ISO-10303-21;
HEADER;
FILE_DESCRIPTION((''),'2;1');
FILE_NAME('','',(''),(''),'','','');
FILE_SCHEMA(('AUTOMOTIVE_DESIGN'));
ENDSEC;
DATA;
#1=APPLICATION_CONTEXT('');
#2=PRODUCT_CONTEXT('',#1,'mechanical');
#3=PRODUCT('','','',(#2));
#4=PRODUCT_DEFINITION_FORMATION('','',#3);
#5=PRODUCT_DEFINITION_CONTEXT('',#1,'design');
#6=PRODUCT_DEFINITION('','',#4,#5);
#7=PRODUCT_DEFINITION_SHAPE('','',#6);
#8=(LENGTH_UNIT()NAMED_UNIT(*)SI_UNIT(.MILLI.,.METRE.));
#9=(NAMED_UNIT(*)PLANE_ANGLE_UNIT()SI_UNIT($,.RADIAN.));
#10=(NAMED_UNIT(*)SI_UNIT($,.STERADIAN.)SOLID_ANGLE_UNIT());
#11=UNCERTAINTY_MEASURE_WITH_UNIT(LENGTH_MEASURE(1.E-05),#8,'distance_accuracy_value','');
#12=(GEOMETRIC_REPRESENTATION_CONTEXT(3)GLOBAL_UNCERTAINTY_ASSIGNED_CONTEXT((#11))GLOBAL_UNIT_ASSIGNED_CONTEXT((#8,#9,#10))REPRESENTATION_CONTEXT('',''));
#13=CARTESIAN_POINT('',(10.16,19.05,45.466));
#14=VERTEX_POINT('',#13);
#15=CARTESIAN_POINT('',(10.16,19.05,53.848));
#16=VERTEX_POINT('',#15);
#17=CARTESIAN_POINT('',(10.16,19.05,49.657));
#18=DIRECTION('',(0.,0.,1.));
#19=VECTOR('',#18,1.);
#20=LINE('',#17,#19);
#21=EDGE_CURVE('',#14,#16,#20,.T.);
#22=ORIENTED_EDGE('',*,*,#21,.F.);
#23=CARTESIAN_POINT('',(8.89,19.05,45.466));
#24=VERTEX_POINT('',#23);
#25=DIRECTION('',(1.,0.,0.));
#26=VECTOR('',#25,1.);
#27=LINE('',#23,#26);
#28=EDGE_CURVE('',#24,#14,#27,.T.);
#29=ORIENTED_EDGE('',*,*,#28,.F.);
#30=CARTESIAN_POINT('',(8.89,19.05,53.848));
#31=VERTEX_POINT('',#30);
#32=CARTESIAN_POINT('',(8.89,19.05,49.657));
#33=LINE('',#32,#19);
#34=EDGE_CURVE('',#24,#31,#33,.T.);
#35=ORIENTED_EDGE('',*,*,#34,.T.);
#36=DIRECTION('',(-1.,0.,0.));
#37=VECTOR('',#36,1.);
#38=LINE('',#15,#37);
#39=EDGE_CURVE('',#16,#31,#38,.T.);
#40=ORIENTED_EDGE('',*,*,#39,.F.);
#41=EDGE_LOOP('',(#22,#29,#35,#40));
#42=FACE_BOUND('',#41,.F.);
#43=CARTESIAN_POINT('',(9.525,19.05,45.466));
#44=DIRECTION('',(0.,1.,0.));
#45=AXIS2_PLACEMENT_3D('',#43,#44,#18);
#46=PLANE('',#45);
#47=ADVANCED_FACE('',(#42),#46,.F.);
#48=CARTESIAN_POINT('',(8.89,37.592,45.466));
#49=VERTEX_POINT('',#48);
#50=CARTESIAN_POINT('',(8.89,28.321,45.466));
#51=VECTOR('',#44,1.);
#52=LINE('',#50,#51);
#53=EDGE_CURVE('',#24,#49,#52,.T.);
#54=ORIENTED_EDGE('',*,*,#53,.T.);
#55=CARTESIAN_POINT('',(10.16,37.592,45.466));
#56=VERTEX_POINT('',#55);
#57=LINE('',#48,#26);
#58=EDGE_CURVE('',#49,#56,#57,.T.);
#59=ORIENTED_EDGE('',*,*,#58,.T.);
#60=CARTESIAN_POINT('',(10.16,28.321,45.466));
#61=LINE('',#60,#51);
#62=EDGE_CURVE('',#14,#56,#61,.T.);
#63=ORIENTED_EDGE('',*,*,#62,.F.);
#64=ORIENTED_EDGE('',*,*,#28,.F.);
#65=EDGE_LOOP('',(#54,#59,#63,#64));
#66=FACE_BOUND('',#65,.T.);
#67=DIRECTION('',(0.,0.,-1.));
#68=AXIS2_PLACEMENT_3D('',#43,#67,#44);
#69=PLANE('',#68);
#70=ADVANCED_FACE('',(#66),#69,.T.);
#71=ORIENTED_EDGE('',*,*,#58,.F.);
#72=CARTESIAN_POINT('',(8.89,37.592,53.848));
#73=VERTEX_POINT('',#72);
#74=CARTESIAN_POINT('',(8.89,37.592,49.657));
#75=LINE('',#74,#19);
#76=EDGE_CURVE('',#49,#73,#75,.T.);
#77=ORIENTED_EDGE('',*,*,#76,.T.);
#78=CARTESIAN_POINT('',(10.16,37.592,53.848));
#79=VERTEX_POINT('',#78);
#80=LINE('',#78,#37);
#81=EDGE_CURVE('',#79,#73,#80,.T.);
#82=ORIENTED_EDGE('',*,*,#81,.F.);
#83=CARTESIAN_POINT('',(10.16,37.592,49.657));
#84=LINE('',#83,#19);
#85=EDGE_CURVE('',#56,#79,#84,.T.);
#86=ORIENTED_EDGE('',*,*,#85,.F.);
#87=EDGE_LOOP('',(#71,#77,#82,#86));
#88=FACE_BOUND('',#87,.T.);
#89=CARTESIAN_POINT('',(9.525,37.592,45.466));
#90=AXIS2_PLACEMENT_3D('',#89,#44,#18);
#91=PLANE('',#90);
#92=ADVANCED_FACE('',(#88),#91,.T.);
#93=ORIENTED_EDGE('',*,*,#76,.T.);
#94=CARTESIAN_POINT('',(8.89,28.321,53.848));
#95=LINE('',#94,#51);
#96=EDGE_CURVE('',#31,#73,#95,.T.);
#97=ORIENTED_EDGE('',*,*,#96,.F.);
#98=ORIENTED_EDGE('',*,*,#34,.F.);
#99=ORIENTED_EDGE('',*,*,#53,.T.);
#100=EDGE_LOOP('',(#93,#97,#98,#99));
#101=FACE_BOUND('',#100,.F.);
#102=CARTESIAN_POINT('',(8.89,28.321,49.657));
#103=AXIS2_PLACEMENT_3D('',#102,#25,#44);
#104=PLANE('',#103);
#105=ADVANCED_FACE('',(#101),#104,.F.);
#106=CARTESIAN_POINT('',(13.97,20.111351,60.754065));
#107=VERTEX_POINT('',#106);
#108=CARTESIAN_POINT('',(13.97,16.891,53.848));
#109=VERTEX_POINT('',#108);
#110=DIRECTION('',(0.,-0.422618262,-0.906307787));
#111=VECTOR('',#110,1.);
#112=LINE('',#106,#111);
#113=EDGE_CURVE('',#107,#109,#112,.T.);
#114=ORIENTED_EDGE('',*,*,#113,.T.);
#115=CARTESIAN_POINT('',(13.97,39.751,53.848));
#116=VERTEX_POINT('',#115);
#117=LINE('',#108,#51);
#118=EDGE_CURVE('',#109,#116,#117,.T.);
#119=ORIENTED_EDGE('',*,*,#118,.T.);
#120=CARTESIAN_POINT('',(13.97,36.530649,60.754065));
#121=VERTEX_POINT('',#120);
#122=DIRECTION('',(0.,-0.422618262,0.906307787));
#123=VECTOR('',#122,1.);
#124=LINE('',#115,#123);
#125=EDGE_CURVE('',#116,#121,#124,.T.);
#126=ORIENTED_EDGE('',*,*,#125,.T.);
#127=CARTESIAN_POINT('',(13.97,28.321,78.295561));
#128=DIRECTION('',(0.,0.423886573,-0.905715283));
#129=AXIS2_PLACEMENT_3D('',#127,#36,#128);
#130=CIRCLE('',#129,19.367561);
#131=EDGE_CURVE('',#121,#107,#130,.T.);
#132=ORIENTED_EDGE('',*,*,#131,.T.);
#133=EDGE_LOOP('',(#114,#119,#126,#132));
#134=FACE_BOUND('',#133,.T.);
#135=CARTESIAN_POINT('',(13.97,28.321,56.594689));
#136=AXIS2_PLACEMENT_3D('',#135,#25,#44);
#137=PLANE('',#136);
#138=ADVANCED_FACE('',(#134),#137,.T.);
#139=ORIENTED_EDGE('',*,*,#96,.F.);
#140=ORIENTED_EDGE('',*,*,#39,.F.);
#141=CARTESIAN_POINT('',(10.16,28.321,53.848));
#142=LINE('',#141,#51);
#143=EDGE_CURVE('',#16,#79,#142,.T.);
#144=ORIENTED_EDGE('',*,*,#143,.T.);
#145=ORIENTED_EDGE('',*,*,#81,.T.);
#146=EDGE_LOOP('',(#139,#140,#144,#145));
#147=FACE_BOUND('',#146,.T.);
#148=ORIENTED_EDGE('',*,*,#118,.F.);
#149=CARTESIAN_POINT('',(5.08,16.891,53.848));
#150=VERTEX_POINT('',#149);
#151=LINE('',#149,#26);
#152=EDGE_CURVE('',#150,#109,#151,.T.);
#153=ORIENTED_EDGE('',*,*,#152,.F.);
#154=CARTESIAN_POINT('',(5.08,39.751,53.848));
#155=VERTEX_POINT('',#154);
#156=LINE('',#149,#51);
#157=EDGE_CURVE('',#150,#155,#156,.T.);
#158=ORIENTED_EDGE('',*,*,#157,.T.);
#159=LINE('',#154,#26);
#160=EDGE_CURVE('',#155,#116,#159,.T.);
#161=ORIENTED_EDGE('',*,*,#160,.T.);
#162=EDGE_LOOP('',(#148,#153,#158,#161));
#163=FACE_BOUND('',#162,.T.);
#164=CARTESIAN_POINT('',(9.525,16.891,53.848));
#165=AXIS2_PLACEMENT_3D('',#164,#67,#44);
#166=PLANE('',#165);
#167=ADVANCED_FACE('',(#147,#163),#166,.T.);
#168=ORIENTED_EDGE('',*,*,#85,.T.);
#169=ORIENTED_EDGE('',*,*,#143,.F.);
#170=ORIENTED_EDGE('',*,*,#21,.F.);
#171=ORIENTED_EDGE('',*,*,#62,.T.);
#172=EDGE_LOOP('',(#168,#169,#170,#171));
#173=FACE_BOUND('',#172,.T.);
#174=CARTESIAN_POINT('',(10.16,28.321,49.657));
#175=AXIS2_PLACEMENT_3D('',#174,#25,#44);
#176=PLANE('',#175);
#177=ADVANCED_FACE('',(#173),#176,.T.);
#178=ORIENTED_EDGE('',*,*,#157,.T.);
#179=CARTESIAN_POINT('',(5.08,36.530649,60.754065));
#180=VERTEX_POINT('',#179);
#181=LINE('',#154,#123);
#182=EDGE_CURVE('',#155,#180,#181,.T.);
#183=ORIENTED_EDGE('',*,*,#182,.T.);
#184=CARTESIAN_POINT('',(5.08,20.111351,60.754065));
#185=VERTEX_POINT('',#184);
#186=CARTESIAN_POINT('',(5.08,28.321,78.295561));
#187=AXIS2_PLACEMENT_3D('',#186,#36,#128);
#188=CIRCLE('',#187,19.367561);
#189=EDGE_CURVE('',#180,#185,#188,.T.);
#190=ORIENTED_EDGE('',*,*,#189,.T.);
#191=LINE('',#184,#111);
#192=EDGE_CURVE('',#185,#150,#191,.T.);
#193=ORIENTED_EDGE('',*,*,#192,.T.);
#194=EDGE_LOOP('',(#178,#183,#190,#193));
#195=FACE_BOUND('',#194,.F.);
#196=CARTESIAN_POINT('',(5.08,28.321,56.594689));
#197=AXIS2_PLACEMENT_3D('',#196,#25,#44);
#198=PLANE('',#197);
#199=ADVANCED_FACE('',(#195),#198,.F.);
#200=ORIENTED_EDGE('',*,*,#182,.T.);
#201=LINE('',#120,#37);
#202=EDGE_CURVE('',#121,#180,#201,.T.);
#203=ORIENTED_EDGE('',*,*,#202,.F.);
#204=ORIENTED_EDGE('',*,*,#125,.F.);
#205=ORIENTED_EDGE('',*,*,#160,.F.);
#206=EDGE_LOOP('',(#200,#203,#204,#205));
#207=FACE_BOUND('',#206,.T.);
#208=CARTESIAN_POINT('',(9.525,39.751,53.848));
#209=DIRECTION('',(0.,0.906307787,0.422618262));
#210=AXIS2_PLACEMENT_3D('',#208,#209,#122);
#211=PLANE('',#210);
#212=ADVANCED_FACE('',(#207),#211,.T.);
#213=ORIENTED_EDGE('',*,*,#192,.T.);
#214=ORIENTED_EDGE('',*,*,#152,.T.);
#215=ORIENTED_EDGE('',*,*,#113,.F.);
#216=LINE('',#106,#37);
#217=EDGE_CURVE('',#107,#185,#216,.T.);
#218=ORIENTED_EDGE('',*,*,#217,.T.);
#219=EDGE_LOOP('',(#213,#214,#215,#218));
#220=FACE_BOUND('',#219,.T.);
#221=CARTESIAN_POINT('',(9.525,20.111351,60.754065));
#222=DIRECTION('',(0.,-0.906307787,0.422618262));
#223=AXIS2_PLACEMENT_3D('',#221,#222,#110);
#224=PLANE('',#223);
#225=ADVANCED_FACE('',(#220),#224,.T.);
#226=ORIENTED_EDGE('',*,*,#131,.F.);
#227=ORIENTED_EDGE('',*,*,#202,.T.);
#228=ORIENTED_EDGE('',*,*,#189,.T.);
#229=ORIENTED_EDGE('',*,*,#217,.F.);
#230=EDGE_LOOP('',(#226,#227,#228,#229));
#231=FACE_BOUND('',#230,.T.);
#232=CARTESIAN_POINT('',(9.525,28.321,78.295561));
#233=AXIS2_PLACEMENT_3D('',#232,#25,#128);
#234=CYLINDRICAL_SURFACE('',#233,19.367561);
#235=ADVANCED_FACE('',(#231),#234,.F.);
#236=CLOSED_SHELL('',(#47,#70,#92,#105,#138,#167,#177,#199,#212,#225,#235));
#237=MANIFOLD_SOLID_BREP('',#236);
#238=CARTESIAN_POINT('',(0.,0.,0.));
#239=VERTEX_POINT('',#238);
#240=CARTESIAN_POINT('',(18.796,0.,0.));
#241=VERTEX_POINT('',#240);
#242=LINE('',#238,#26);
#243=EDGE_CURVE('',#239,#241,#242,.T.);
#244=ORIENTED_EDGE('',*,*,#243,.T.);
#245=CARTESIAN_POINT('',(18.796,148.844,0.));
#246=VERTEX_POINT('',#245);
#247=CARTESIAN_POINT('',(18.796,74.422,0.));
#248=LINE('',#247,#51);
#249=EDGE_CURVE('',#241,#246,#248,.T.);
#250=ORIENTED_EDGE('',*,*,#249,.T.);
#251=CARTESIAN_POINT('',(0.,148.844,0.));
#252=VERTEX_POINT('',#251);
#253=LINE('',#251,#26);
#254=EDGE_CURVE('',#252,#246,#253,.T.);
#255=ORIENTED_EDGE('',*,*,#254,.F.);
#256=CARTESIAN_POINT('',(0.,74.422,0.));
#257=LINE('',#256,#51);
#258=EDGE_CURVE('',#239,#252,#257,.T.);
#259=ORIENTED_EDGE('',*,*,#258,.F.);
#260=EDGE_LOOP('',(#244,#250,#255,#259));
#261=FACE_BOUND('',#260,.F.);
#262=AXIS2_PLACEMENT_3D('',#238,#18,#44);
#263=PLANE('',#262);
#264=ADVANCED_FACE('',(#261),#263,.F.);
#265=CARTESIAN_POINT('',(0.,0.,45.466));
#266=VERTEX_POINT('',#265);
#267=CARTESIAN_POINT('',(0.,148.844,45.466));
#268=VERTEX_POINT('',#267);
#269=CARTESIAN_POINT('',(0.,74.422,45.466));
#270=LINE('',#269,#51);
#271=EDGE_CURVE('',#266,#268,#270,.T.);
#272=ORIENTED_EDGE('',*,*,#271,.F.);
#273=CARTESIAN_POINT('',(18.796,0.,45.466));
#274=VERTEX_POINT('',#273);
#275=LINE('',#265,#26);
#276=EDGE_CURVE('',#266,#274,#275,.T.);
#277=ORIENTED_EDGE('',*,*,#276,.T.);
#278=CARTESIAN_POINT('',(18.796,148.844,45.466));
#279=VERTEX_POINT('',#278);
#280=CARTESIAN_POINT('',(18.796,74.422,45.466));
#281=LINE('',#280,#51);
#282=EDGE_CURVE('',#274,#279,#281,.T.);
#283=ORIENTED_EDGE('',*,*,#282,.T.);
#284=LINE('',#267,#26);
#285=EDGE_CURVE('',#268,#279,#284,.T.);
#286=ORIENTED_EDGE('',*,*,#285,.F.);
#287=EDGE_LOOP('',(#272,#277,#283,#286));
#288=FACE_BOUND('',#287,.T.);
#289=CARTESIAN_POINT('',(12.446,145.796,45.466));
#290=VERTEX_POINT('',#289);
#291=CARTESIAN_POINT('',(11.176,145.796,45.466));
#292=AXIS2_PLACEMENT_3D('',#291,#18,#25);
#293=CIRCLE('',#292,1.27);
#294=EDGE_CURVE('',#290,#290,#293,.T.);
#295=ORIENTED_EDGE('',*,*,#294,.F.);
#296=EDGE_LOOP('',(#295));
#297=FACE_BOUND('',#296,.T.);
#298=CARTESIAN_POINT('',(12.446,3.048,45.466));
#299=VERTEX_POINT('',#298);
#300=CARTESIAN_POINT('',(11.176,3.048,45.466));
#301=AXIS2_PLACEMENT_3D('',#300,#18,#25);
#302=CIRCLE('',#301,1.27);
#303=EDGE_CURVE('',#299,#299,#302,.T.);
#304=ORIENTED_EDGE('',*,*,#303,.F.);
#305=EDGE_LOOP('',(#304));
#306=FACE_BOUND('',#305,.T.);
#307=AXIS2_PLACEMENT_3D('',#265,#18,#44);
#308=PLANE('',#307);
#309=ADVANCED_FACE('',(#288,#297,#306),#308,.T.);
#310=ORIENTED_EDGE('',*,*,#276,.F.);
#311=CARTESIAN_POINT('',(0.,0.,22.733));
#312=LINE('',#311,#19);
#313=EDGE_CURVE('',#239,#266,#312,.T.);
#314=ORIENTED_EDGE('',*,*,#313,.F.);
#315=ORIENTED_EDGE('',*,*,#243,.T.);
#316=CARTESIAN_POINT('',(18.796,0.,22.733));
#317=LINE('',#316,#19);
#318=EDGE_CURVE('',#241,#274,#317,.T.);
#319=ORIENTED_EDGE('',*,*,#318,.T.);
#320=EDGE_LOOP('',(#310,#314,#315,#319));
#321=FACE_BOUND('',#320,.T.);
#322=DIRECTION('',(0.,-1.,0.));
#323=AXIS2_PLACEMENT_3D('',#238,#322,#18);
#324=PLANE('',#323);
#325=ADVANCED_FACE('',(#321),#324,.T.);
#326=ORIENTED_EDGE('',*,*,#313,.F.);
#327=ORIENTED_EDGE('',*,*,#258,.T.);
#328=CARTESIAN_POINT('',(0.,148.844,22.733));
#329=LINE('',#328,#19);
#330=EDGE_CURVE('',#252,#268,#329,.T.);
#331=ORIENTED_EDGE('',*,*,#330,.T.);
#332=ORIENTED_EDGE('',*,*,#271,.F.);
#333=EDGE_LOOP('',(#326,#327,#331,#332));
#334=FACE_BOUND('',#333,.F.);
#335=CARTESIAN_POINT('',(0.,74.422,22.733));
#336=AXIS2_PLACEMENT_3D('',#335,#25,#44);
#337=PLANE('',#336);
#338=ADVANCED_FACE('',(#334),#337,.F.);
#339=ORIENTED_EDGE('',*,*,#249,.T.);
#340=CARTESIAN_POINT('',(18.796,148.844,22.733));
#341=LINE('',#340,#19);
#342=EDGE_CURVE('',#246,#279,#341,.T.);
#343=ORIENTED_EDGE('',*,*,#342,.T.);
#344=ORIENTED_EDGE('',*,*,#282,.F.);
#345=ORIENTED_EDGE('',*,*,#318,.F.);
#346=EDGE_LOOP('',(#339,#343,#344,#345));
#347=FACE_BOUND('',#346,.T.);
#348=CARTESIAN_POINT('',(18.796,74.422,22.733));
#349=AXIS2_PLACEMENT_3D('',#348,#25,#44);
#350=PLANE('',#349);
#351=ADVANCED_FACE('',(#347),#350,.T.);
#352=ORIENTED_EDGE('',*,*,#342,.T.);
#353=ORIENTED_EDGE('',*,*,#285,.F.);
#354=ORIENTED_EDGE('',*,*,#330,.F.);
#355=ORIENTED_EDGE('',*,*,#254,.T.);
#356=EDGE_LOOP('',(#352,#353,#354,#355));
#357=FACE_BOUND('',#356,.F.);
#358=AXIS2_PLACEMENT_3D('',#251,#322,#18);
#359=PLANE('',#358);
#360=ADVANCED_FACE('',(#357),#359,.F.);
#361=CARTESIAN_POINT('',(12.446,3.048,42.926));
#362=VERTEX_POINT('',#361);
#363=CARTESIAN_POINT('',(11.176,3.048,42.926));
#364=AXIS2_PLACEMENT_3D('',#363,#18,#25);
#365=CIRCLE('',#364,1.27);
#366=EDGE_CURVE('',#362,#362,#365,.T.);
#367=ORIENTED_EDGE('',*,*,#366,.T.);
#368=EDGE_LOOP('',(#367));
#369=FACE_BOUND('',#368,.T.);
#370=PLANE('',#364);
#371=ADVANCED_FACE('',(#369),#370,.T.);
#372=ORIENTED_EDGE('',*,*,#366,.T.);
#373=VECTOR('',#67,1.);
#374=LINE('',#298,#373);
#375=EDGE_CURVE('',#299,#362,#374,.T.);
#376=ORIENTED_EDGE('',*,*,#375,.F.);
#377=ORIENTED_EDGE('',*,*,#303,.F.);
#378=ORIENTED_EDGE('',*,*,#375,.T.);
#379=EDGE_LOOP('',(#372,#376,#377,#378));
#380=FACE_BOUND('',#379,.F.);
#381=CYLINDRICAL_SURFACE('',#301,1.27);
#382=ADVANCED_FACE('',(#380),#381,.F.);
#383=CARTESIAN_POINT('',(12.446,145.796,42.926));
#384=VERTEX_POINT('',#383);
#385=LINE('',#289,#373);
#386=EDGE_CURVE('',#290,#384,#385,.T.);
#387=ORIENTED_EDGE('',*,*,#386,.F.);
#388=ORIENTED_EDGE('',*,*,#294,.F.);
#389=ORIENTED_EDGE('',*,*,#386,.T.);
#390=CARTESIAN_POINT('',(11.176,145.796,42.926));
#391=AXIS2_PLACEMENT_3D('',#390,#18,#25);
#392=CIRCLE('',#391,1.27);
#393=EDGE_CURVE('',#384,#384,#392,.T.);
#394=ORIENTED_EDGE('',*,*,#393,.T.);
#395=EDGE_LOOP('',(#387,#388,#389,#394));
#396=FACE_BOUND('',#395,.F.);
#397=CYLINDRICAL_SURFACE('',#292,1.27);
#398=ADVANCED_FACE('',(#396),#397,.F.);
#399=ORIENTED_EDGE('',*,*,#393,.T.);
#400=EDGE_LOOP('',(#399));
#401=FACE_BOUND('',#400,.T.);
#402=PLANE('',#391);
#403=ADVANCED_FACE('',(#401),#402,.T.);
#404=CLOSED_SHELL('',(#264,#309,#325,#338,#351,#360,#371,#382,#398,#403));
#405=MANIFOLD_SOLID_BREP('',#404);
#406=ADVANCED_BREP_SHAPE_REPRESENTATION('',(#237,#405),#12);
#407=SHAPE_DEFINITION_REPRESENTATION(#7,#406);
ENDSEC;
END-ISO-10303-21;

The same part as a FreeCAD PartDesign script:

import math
import FreeCAD as App
import Part
import Sketcher
from FreeCAD import Vector
Q = App.Units.Quantity


def add_polygon(sketch, points):
    """Adds a closed chain of lines whose ends are joined by coincident constraints."""
    first, n = sketch.GeometryCount, len(points)
    for a, b in zip(points, points[1:] + points[:1]):
        sketch.addGeometry(Part.LineSegment(App.Vector(*a, 0), App.Vector(*b, 0)), False)
    for i in range(n):
        sketch.addConstraint(Sketcher.Constraint("Coincident", first + i, 2, first + (i + 1) % n, 1))

doc = App.newDocument("Part")
body = doc.addObject("PartDesign::Body", "Body")

sketch1 = body.newObject("Sketcher::SketchObject", "Sketch")
sketch1.AttachmentSupport = (doc.getObject("YZ_Plane"), [""])
sketch1.MapMode = "FlatFace"
add_polygon(sketch1, [(0, 45), (0, 0), (149, 0), (149, 45)])
sketch1.addConstraint(Sketcher.Constraint("Vertical", 0))
sketch1.addConstraint(Sketcher.Constraint("Horizontal", 1))
sketch1.addConstraint(Sketcher.Constraint("Vertical", 2))
sketch1.addConstraint(Sketcher.Constraint("Horizontal", 3))
sketch1.addConstraint(Sketcher.Constraint("Coincident", 0, 2, -1, 1))
sketch1.addConstraint(Sketcher.Constraint("DistanceX", 1, 1, 1, 2, Q("5.86 in")))
sketch1.addConstraint(Sketcher.Constraint("DistanceY", 0, 2, 0, 1, Q("1.79 in")))
pad1 = body.newObject("PartDesign::Pad", "Pad")
pad1.Profile = sketch1
pad1.Length = Q("0.74 in")

sketch2 = body.newObject("Sketcher::SketchObject", "Sketch001")
sketch2.AttachmentSupport = (doc.getObject("XY_Plane"), [""])
sketch2.MapMode = "FlatFace"
sketch2.AttachmentOffset = App.Placement(Vector(0, 0, 1.79 * 25.4), App.Rotation())
sketch2.addGeometry(Part.Circle(Vector(11.2, 145.8, 0), Vector(0, 0, 1), 1.3), False)
sketch2.addGeometry(Part.Circle(Vector(11.2, 3, 0), Vector(0, 0, 1), 1.3), False)
sketch2.addConstraint(Sketcher.Constraint("Equal", 0, 1))
sketch2.addConstraint(Sketcher.Constraint("Vertical", 0, 3, 1, 3))
sketch2.addConstraint(Sketcher.Constraint("Diameter", 0, Q("0.1 in")))
sketch2.addConstraint(Sketcher.Constraint("DistanceX", -1, 1, 0, 3, Q("0.44 in")))
sketch2.addConstraint(Sketcher.Constraint("DistanceY", -1, 1, 0, 3, Q("5.74 in")))
sketch2.addConstraint(Sketcher.Constraint("DistanceY", -1, 1, 1, 3, Q("0.12 in")))
pocket1 = body.newObject("PartDesign::Pocket", "Pocket")
pocket1.Profile = sketch2
pocket1.Length = Q("0.1 in")
body2 = doc.addObject("PartDesign::Body", "Body001")

sketch3 = body2.newObject("Sketcher::SketchObject", "Sketch002")
sketch3.AttachmentSupport = (doc.getObject("YZ_Plane001"), [""])
sketch3.MapMode = "FlatFace"
sketch3.AttachmentOffset = App.Placement(Vector(0, 0, 0.375 * 25.4), App.Rotation())
add_polygon(sketch3, [(19, 54), (19, 45), (38, 45), (38, 54)])
sketch3.addConstraint(Sketcher.Constraint("Vertical", 0))
sketch3.addConstraint(Sketcher.Constraint("Horizontal", 1))
sketch3.addConstraint(Sketcher.Constraint("Vertical", 2))
sketch3.addConstraint(Sketcher.Constraint("Horizontal", 3))
sketch3.addConstraint(Sketcher.Constraint("DistanceX", 1, 1, 1, 2, Q("0.73 in")))
sketch3.addConstraint(Sketcher.Constraint("DistanceY", 0, 2, 0, 1, Q("0.33 in")))
sketch3.addConstraint(Sketcher.Constraint("DistanceX", -1, 1, 0, 2, Q("0.75 in")))
sketch3.addConstraint(Sketcher.Constraint("DistanceY", -1, 1, 0, 2, Q("1.79 in")))
pad2 = body2.newObject("PartDesign::Pad", "Pad001")
pad2.Profile = sketch3
pad2.Length = Q("0.05 in")
pad2.Midplane = True

sketch4 = body2.newObject("Sketcher::SketchObject", "Sketch003")
sketch4.AttachmentSupport = (doc.getObject("YZ_Plane001"), [""])
sketch4.MapMode = "FlatFace"
sketch4.AttachmentOffset = App.Placement(Vector(0, 0, 0.375 * 25.4), App.Rotation())
sketch4.addGeometry(Part.LineSegment(Vector(20, 61, 0), Vector(17, 54, 0)), False)
sketch4.addGeometry(Part.LineSegment(Vector(17, 54, 0), Vector(40, 54, 0)), False)
sketch4.addGeometry(Part.LineSegment(Vector(40, 54, 0), Vector(37, 61, 0)), False)
sketch4.addGeometry(Part.ArcOfCircle(Part.Circle(Vector(28, 78, 0), Vector(0, 0, 1), 19), math.radians(-115), math.radians(-65)), False)
sketch4.addConstraint(Sketcher.Constraint("Coincident", 0, 2, 1, 1))
sketch4.addConstraint(Sketcher.Constraint("Coincident", 1, 2, 2, 1))
sketch4.addConstraint(Sketcher.Constraint("Coincident", 2, 2, 3, 2))
sketch4.addConstraint(Sketcher.Constraint("Coincident", 3, 1, 0, 1))
sketch4.addConstraint(Sketcher.Constraint("Horizontal", 1))
sketch4.addConstraint(Sketcher.Constraint("Horizontal", 2, 2, 3, 1))
sketch4.addConstraint(Sketcher.Constraint("Equal", 0, 2))
sketch4.addConstraint(Sketcher.Constraint("DistanceX", 1, 1, 1, 2, Q("0.9 in")))
sketch4.addConstraint(Sketcher.Constraint("Angle", 0, Q("-115 deg")))
sketch4.addConstraint(Sketcher.Constraint("Distance", 0, Q("0.3 in")))
sketch4.addConstraint(Sketcher.Constraint("DistanceY", -1, 1, 0, 2, Q("2.12 in")))
sketch4.addConstraint(Sketcher.Constraint("DistanceX", -1, 1, 3, 3, Q("1.115 in")))
sketch4.addConstraint(Sketcher.Constraint("Radius", 3, 19.367561))
pad3 = body2.newObject("PartDesign::Pad", "Pad002")
pad3.Profile = sketch4
pad3.Length = Q("0.35 in")
pad3.Midplane = True

doc.recompute()
